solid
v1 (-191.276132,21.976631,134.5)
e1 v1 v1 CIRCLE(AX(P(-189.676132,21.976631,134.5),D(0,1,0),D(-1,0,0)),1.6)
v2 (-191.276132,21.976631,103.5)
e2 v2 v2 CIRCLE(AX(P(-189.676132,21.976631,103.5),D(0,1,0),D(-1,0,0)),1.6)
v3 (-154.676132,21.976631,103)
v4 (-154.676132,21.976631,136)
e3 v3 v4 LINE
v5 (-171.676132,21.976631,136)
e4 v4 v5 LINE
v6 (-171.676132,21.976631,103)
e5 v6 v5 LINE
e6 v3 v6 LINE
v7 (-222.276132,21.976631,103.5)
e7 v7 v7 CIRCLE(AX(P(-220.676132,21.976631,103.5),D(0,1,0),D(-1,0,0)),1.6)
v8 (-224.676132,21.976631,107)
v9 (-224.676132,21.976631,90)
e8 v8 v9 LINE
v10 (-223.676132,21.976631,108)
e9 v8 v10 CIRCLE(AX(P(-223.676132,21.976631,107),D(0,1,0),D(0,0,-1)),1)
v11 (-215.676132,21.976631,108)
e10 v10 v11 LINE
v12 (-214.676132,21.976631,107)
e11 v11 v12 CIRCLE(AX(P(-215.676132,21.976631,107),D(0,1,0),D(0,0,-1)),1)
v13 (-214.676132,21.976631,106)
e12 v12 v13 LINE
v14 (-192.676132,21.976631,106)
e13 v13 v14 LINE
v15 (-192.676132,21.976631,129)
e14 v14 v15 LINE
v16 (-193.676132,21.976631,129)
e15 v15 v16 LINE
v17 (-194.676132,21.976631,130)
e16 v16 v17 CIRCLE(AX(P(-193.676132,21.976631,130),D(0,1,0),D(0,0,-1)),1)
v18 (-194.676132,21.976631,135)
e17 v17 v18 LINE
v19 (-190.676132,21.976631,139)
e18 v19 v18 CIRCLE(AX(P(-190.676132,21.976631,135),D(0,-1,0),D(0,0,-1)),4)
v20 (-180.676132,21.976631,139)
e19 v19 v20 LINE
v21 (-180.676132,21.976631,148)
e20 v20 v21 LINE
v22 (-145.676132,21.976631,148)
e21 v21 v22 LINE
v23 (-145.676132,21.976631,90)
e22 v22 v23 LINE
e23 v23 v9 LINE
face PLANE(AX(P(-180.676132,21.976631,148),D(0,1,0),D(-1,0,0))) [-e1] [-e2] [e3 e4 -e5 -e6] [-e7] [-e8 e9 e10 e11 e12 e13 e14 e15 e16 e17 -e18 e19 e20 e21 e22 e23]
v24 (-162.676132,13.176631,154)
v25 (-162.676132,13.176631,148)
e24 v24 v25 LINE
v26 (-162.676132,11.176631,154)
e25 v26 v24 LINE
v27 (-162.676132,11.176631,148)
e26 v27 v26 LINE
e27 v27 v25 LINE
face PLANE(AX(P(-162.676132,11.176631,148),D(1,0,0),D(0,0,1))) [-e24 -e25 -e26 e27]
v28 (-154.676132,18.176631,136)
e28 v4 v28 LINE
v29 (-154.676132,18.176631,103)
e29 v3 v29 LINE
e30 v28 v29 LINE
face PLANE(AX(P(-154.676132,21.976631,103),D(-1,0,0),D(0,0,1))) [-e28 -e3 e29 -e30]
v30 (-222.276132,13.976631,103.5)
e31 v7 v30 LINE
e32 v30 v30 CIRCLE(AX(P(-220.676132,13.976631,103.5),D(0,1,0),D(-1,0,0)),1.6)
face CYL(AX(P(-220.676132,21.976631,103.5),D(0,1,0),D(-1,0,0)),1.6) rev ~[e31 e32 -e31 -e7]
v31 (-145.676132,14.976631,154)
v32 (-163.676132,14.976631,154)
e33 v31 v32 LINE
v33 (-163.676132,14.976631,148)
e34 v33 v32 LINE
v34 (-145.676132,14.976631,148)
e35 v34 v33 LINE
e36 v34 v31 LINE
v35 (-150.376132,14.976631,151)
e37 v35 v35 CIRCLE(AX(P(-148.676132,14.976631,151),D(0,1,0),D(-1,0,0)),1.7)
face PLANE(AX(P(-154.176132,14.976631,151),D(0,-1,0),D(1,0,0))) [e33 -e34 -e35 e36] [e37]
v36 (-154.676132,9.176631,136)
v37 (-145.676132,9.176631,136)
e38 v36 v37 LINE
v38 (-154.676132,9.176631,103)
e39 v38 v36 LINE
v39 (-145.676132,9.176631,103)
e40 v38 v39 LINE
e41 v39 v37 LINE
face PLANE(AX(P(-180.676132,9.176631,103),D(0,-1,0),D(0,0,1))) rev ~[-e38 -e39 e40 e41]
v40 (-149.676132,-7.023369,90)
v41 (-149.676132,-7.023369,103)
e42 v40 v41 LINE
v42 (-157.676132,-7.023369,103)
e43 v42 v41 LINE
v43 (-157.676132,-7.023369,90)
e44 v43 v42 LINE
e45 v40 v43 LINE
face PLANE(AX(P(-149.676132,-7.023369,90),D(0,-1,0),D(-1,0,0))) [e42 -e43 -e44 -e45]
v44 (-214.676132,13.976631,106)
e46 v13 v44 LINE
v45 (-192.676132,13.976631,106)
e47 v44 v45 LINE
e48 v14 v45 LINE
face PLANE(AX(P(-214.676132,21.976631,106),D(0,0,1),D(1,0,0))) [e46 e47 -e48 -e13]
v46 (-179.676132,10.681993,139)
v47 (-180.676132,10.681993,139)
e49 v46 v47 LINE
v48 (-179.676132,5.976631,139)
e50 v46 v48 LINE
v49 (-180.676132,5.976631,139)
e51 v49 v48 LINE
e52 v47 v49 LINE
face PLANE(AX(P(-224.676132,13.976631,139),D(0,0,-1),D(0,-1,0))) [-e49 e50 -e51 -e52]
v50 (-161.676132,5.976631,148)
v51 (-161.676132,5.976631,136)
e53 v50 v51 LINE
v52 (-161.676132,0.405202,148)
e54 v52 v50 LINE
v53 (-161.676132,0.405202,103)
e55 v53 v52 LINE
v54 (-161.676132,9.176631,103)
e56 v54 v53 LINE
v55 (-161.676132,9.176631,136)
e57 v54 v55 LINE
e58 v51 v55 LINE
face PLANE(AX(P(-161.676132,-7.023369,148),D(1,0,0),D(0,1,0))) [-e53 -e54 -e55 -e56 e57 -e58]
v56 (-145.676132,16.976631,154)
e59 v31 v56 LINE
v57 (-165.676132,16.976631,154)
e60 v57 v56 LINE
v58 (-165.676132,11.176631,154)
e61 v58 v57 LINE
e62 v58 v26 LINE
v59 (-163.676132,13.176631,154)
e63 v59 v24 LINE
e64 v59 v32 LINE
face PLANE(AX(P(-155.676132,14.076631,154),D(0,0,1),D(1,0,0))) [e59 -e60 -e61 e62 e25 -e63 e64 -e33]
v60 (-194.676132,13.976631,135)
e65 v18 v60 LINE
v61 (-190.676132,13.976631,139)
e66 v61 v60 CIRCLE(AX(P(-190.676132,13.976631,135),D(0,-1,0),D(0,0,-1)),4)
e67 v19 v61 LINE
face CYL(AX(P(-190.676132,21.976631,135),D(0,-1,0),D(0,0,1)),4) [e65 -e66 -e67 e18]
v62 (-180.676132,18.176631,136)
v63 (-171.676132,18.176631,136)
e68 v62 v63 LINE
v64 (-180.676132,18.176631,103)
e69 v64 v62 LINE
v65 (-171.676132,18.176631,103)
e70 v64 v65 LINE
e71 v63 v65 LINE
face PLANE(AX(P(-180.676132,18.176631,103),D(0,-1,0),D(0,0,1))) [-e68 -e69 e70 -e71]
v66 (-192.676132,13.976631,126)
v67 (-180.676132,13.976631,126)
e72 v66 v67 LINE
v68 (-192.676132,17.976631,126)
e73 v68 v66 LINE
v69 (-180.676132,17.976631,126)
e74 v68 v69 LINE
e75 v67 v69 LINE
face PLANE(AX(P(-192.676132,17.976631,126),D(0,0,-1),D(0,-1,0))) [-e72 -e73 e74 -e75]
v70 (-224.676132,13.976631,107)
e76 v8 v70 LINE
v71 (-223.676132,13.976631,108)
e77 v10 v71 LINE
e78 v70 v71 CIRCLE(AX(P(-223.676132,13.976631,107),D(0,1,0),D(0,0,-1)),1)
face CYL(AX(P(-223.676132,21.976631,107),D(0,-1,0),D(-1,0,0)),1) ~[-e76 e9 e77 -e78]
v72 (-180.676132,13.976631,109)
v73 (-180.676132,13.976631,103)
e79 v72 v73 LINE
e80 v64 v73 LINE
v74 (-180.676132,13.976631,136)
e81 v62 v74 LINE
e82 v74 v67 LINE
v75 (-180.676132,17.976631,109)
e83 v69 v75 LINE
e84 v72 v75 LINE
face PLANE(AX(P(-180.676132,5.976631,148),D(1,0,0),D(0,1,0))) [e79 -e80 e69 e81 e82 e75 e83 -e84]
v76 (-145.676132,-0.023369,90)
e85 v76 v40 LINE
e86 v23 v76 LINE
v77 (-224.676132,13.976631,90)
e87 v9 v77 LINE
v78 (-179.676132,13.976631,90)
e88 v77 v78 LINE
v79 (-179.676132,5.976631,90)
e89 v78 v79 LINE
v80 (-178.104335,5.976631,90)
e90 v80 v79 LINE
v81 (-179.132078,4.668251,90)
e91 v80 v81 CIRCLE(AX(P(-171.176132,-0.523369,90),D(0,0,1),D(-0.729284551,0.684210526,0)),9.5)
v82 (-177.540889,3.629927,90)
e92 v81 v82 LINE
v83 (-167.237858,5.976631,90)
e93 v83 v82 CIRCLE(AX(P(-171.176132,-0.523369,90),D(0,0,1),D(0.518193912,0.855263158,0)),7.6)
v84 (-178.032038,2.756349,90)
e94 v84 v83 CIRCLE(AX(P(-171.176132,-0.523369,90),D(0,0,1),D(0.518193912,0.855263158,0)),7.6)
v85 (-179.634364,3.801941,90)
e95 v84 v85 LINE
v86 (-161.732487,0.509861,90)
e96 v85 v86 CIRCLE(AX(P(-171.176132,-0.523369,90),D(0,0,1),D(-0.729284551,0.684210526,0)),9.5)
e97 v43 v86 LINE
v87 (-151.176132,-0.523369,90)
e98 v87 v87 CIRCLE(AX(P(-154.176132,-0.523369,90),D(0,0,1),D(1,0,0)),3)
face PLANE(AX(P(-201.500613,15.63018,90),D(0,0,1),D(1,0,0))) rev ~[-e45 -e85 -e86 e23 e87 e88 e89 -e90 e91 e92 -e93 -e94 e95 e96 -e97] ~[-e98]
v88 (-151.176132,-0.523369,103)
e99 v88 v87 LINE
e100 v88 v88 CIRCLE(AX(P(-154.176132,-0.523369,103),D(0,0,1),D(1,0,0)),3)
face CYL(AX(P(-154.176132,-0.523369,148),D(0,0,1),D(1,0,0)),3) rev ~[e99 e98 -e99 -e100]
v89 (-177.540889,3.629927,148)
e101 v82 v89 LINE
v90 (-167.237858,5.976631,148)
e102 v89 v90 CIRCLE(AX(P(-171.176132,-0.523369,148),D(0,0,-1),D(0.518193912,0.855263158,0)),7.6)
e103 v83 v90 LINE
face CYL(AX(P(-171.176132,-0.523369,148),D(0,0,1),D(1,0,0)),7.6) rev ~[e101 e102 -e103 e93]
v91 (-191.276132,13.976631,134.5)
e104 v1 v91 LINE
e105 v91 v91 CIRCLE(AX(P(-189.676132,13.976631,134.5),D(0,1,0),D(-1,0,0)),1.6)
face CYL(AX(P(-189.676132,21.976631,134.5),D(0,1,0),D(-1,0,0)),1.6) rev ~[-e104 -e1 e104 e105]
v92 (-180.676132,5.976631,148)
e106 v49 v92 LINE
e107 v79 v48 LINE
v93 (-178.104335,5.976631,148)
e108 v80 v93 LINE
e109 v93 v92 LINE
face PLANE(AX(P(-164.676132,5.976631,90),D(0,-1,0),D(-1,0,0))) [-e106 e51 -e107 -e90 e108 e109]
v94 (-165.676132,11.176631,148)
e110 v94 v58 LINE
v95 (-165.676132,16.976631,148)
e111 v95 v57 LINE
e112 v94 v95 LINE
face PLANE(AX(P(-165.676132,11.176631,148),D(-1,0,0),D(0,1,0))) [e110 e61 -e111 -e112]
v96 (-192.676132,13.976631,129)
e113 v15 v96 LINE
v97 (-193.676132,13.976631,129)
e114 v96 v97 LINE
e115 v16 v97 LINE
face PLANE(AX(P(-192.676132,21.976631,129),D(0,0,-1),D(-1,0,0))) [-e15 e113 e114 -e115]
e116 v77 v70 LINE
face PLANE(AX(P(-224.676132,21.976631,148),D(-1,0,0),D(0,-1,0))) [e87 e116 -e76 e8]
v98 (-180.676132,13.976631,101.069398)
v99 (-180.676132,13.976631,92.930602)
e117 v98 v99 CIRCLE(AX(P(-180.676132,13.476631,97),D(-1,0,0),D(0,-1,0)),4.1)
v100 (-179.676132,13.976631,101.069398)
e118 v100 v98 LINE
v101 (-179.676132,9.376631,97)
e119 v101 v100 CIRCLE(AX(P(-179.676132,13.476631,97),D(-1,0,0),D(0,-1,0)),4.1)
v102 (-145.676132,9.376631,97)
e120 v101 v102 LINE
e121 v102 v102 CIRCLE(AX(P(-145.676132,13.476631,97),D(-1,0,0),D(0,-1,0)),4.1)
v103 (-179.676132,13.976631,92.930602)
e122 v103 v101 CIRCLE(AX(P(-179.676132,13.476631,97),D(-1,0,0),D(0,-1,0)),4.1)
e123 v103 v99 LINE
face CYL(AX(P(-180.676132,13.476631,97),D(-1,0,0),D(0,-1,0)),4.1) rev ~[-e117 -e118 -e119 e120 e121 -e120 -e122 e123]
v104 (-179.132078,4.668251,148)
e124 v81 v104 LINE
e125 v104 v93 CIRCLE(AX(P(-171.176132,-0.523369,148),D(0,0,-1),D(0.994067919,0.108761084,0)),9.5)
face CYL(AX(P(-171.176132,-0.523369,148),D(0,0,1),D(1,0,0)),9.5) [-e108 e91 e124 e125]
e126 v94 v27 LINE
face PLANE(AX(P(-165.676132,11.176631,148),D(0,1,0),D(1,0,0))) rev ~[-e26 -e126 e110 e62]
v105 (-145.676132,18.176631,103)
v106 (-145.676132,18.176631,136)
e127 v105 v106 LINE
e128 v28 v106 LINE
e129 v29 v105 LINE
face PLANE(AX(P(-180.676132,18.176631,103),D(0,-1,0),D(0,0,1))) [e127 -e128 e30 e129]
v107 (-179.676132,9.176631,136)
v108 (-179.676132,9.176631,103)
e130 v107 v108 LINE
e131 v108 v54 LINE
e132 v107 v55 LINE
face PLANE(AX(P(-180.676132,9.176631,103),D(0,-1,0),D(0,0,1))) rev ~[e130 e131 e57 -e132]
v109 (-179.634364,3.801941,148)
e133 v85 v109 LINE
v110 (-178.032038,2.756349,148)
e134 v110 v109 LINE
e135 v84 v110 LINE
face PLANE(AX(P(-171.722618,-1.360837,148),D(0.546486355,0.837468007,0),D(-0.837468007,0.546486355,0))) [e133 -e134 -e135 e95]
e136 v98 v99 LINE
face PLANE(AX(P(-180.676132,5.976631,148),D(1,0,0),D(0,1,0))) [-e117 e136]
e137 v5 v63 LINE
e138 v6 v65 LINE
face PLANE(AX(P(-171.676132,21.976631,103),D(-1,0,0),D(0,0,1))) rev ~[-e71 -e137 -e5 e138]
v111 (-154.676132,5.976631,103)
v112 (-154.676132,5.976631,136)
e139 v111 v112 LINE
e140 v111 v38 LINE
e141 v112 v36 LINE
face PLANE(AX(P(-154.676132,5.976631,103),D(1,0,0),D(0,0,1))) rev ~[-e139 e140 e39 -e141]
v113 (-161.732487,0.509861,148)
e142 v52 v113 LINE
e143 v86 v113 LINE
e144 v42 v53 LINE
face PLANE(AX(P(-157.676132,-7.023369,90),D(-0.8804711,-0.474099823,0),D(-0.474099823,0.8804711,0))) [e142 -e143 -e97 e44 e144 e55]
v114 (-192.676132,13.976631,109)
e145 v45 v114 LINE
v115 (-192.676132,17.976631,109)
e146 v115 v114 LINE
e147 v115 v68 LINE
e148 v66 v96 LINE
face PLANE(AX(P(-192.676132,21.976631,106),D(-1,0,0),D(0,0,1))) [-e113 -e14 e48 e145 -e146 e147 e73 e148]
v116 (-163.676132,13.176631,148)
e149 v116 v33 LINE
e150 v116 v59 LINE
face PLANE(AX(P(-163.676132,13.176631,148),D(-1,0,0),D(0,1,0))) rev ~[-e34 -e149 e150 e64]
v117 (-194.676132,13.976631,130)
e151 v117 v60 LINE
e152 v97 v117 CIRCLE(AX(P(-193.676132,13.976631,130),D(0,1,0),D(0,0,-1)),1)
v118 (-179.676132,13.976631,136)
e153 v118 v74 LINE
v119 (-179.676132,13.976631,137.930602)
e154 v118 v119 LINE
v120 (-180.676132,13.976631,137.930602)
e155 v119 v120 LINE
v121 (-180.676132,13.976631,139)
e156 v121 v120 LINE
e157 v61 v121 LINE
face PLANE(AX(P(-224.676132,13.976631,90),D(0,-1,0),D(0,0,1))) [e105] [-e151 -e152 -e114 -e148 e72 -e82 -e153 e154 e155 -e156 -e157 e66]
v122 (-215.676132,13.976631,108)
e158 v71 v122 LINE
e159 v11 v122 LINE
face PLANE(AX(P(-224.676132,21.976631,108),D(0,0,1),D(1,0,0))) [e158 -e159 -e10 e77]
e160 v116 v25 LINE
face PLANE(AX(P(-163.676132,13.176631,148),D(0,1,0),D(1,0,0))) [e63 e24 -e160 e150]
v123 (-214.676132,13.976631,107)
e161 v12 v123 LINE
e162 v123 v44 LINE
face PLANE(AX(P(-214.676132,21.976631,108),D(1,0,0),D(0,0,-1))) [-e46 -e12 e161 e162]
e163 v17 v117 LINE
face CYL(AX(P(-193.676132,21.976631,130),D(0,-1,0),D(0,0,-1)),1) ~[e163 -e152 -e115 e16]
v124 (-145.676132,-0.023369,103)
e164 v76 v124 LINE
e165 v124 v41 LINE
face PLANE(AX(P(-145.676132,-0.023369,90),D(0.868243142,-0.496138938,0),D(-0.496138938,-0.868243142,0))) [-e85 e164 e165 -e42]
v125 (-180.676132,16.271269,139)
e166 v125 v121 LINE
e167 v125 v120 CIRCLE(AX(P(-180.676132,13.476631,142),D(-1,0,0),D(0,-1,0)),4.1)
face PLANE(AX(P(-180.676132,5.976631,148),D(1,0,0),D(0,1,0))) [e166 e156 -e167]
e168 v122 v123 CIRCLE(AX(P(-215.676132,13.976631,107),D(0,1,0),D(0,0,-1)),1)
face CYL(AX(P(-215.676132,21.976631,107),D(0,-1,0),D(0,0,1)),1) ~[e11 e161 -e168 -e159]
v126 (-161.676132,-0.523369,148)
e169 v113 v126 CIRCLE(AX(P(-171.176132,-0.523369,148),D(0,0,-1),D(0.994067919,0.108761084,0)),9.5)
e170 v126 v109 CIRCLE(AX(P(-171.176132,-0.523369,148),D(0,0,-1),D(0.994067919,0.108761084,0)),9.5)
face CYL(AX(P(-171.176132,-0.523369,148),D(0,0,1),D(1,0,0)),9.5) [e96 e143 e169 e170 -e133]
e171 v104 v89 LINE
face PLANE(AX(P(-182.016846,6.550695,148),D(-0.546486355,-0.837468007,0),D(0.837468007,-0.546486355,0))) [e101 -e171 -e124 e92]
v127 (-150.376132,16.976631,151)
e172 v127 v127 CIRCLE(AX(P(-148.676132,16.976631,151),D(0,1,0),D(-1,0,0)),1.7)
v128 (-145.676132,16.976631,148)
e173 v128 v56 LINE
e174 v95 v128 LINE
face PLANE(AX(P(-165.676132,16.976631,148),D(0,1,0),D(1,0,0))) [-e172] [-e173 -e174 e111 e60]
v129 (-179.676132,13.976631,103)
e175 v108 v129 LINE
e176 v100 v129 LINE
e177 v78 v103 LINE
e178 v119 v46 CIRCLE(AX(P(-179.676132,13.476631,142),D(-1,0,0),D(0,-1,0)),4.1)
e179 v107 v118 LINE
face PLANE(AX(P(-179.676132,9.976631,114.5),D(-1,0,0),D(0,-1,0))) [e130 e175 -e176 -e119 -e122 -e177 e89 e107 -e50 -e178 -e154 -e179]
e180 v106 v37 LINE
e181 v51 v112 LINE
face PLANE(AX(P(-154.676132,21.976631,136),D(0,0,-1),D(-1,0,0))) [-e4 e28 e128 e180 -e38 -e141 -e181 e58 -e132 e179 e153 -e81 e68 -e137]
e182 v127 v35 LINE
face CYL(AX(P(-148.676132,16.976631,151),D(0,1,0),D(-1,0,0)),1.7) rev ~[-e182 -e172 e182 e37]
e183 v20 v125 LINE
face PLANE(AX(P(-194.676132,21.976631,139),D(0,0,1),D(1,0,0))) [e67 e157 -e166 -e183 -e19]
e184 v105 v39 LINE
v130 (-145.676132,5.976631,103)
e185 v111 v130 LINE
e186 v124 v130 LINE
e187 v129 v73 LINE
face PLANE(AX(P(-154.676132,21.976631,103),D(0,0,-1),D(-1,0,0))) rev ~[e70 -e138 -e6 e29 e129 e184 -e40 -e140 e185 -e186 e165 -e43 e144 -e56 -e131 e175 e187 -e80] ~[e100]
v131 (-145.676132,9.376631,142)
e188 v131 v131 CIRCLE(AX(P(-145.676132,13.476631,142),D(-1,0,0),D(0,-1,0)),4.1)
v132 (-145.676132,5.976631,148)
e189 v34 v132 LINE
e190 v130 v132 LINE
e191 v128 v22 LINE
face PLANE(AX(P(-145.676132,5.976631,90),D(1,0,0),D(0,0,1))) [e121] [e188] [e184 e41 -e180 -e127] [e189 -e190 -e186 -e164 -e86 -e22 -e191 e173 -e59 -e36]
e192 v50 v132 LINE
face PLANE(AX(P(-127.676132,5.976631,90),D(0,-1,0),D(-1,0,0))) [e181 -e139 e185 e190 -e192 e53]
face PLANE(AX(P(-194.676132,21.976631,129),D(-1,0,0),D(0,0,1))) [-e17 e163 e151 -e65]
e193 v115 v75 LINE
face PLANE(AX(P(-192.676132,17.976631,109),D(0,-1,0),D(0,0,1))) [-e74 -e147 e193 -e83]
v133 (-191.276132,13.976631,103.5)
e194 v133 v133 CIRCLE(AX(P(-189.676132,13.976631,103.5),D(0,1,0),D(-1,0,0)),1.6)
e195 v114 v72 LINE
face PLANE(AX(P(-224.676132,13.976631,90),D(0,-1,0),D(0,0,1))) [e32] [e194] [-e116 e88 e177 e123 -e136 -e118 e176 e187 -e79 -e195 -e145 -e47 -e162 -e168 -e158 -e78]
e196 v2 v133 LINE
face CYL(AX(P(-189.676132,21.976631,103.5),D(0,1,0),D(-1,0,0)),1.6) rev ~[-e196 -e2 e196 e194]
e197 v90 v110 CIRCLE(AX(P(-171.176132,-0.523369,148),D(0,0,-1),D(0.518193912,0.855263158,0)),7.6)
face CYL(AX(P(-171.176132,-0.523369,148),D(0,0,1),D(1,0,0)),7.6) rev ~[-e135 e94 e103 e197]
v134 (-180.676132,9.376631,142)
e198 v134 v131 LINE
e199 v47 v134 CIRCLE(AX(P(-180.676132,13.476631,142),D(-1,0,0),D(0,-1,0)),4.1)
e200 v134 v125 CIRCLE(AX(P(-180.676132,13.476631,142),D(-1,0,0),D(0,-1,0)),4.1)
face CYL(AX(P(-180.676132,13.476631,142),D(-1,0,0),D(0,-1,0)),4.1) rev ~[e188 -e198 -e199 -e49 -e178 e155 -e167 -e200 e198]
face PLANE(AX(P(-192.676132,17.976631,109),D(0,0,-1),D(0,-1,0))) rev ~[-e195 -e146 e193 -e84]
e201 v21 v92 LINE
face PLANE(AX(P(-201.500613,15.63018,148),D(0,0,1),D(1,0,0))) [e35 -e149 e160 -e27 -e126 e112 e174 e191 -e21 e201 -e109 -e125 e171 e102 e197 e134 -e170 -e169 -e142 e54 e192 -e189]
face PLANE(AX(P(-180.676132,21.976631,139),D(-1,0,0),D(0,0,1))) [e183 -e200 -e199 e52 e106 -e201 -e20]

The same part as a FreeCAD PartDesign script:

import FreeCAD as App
import Part
import Sketcher

V = App.Vector
Q = App.Units.Quantity


def edges_at(feature, points):
    """Names of the edges that pass closest to the given points."""
    edges = feature.Shape.Edges
    near = lambda p: min(range(len(edges)), key=lambda i: edges[i].distToShape(Part.Vertex(*p))[0])
    return sorted({f"Edge{near(p) + 1}" for p in points})


def add_polygon(sketch, points):
    """Adds a closed chain of lines whose ends are joined by coincident constraints."""
    first, n = sketch.GeometryCount, len(points)
    for a, b in zip(points, points[1:] + points[:1]):
        sketch.addGeometry(Part.LineSegment(App.Vector(*a, 0), App.Vector(*b, 0)), False)
    for i in range(n):
        sketch.addConstraint(Sketcher.Constraint("Coincident", first + i, 2, first + (i + 1) % n, 1))

doc = App.newDocument("Part")
params = doc.addObject("Spreadsheet::Sheet", "Params")
for row, (alias, value) in enumerate([
    ("sketch1_width", "53 mm"),
    ("sketch1_width2", "16 mm"),
    ("sketch1_width3", "8 mm"),
    ("sketch1_width4", "18 mm"),
    ("sketch1_height", "6 mm"),
    ("pad1_length", "58 mm"),
    ("sketch2_diameter", "19 mm"),
    ("sketch2_diameter2", "15.2 mm"),
    ("pad2_length", "58 mm"),
    ("sketch3_diameter", "6 mm"),
    ("sketch3_diameter2", "15.2 mm"),
    ("pocket1_length", "58 mm"),
    ("sketch4_diameter", "8.2 mm"),
    ("sketch4_width", "9 mm"),
    ("sketch4_height", "33 mm"),
    ("pocket2_length", "55 mm"),
    ("sketch5_width", "16 mm"),
    ("sketch5_height", "13 mm"),
    ("pocket3_length", "45 mm"),
    ("sketch6_width", "44 mm"),
    ("sketch6_width2", "10 mm"),
    ("sketch6_height", "16 mm"),
    ("pad3_length", "58 mm"),
    ("sketch7_diameter", "3.2 mm"),
    ("sketch7_width", "10 mm"),
    ("sketch7_width2", "44 mm"),
    ("sketch7_width3", "14 mm"),
    ("sketch7_width4", "2 mm"),
    ("pocket4_length", "17 mm"),
    ("sketch8_width", "18 mm"),
    ("sketch8_height", "58 mm"),
    ("pocket5_length", "25 mm"),
    ("sketch9_width", "17 mm"),
    ("sketch9_height", "33 mm"),
    ("pocket6_length", "5 mm"),
    ("sketch10_width", "7 mm"),
    ("sketch10_height", "33 mm"),
    ("pocket7_length", "5 mm"),
    ("sketch11_width", "8 mm"),
    ("sketch11_height", "49 mm"),
    ("pocket8_length", "45 mm"),
    ("sketch12_width", "4 mm"),
    ("sketch12_height", "17 mm"),
    ("pocket9_length", "20 mm"),
    ("sketch13_length", "1 mm"),
    ("pocket10_length", "58 mm"),
    ("sketch14_width", "20 mm"),
    ("sketch14_width2", "17.2 mm"),
    ("sketch14_height", "5.8 mm"),
    ("sketch14_height2", "1.8 mm"),
    ("pad4_length", "6 mm"),
    ("sketch15_width", "17 mm"),
    ("sketch15_height", "6 mm"),
    ("pocket11_length", "3.8 mm"),
    ("sketch16_diameter", "3.4 mm"),
    ("fillet_radius", "1 mm"),
    ("fillet2_radius", "4 mm"),
], start=1):
    params.set(f"A{row}", alias)
    params.set(f"B{row}", "=" + value)
    params.setAlias(f"B{row}", alias)

body = doc.addObject("PartDesign::Body", "Body")

# Sketch on XY plane
sketch1 = body.newObject("Sketcher::SketchObject", "Sketch")
sketch1.AttachmentSupport = (doc.getObject("XY_Plane"), [""])
sketch1.MapMode = "FlatFace"
sketch1.AttachmentOffset = App.Placement(V(0, 0, 90), App.Rotation())
add_polygon(sketch1, [(-128, 22), (-181, 22), (-181, 6), (-165, 6), (-158, -7), (-150, -7), (-146, 0), (-146, 6), (-128, 6)])  # lines 0-8
sketch1.addConstraint(Sketcher.Constraint("Horizontal", 0))
sketch1.addConstraint(Sketcher.Constraint("Vertical", 1))
sketch1.addConstraint(Sketcher.Constraint("Horizontal", 2))
sketch1.addConstraint(Sketcher.Constraint("Horizontal", 4))
sketch1.addConstraint(Sketcher.Constraint("Vertical", 6))
sketch1.addConstraint(Sketcher.Constraint("Horizontal", 7))
sketch1.addConstraint(Sketcher.Constraint("Vertical", 8))
sketch1.addConstraint(Sketcher.Constraint("Horizontal", 2, 2, 6, 2))
sketch1.addConstraint(Sketcher.Constraint("Equal", 2, 1))
sketch1.addConstraint(Sketcher.Constraint("DistanceX", 0, 2, 0, 1, Q("53 mm")))
sketch1.addConstraint(Sketcher.Constraint("DistanceX", 2, 1, 2, 2, Q("16 mm")))
sketch1.addConstraint(Sketcher.Constraint("DistanceX", 4, 1, 4, 2, Q("8 mm")))
sketch1.addConstraint(Sketcher.Constraint("DistanceX", 7, 1, 7, 2, Q("18 mm")))
sketch1.addConstraint(Sketcher.Constraint("DistanceY", 6, 1, 6, 2, Q("6 mm")))
sketch1.addConstraint(Sketcher.Constraint("DistanceX", 2, 2, 3, 2, Q("7 mm")))
sketch1.addConstraint(Sketcher.Constraint("DistanceY", 3, 2, 2, 2, Q("13 mm")))
sketch1.addConstraint(Sketcher.Constraint("DistanceX", 0, 2, -1, 1, Q("180.676132 mm")))
sketch1.addConstraint(Sketcher.Constraint("DistanceY", -1, 1, 0, 2, Q("21.976631 mm")))
sketch1.setExpression("Constraints[18]", "Params.sketch1_width")
sketch1.setExpression("Constraints[19]", "Params.sketch1_width2")
sketch1.setExpression("Constraints[20]", "Params.sketch1_width3")
sketch1.setExpression("Constraints[21]", "Params.sketch1_width4")
sketch1.setExpression("Constraints[22]", "Params.sketch1_height")
pad1 = body.newObject("PartDesign::Pad", "Pad")
pad1.Profile = sketch1
pad1.setExpression("Length", "Params.pad1_length")

# Sketch on XY plane
sketch2 = body.newObject("Sketcher::SketchObject", "Sketch001")
sketch2.AttachmentSupport = (doc.getObject("XY_Plane"), [""])
sketch2.MapMode = "FlatFace"
sketch2.AttachmentOffset = App.Placement(V(0, 0, 148), App.Rotation())
sketch2.addGeometry(Part.Circle(V(-171, -1, 0), V(0, 0, 1), 10), False)
sketch2.addGeometry(Part.Circle(V(-171, -1, 0), V(0, 0, 1), 8), False)
sketch2.addConstraint(Sketcher.Constraint("Coincident", 1, 3, 0, 3))
sketch2.addConstraint(Sketcher.Constraint("Diameter", 0, Q("19 mm")))
sketch2.addConstraint(Sketcher.Constraint("Diameter", 1, Q("15.2 mm")))
sketch2.addConstraint(Sketcher.Constraint("DistanceX", 0, 3, -1, 1, Q("171.176132 mm")))
sketch2.addConstraint(Sketcher.Constraint("DistanceY", 0, 3, -1, 1, Q("0.523369 mm")))
sketch2.setExpression("Constraints[1]", "Params.sketch2_diameter")
sketch2.setExpression("Constraints[2]", "Params.sketch2_diameter2")
pad2 = body.newObject("PartDesign::Pad", "Pad001")
pad2.Profile = sketch2
pad2.setExpression("Length", "Params.pad2_length")
pad2.Reversed = True

# Sketch on XY plane
sketch3 = body.newObject("Sketcher::SketchObject", "Sketch002")
sketch3.AttachmentSupport = (doc.getObject("XY_Plane"), [""])
sketch3.MapMode = "FlatFace"
sketch3.AttachmentOffset = App.Placement(V(0, 0, 148), App.Rotation())
sketch3.addGeometry(Part.Circle(V(-171.2, -0.5, 0), V(0, 0, 1), 7.6), False)
sketch3.addGeometry(Part.Circle(V(-154.2, -0.5, 0), V(0, 0, 1), 3), False)
sketch3.addConstraint(Sketcher.Constraint("Horizontal", 0, 3, 1, 3))
sketch3.addConstraint(Sketcher.Constraint("Diameter", 1, Q("6 mm")))
sketch3.addConstraint(Sketcher.Constraint("Diameter", 0, Q("15.2 mm")))
sketch3.addConstraint(Sketcher.Constraint("DistanceX", 0, 3, 1, 3, Q("17 mm")))
sketch3.addConstraint(Sketcher.Constraint("DistanceX", 0, 3, -1, 1, Q("171.176132 mm")))
sketch3.addConstraint(Sketcher.Constraint("DistanceY", 0, 3, -1, 1, Q("0.523369 mm")))
sketch3.setExpression("Constraints[1]", "Params.sketch3_diameter")
sketch3.setExpression("Constraints[2]", "Params.sketch3_diameter2")
pocket1 = body.newObject("PartDesign::Pocket", "Pocket")
pocket1.Profile = sketch3
pocket1.setExpression("Length", "Params.pocket1_length")

# Sketch on YZ plane
sketch4 = body.newObject("Sketcher::SketchObject", "Sketch003")
sketch4.AttachmentSupport = (doc.getObject("YZ_Plane"), [""])
sketch4.MapMode = "FlatFace"
sketch4.AttachmentOffset = App.Placement(V(0, 0, -180.676132), App.Rotation())
sketch4.addGeometry(Part.Circle(V(13.5, 142, 0), V(0, 0, 1), 4.1), False)  # 0
sketch4.addGeometry(Part.Circle(V(13.5, 97, 0), V(0, 0, 1), 4.1), False)  # 1
add_polygon(sketch4, [(18.2, 136), (18.2, 103), (9.2, 103), (9.2, 136)])  # lines 2-5
sketch4.addConstraint(Sketcher.Constraint("Vertical", 2))
sketch4.addConstraint(Sketcher.Constraint("Horizontal", 3))
sketch4.addConstraint(Sketcher.Constraint("Vertical", 4))
sketch4.addConstraint(Sketcher.Constraint("Horizontal", 5))
sketch4.addConstraint(Sketcher.Constraint("Equal", 0, 1))
sketch4.addConstraint(Sketcher.Constraint("Vertical", 0, 3, 1, 3))
sketch4.addConstraint(Sketcher.Constraint("Diameter", 0, Q("8.2 mm")))
sketch4.addConstraint(Sketcher.Constraint("DistanceX", 3, 2, 3, 1, Q("9 mm")))
sketch4.addConstraint(Sketcher.Constraint("DistanceY", 2, 2, 2, 1, Q("33 mm")))
sketch4.addConstraint(Sketcher.Constraint("DistanceY", -1, 1, 0, 3, Q("142 mm")))
sketch4.addConstraint(Sketcher.Constraint("DistanceY", -1, 1, 1, 3, Q("97 mm")))
sketch4.addConstraint(Sketcher.Constraint("DistanceY", -1, 1, 2, 2, Q("103 mm")))
sketch4.addConstraint(Sketcher.Constraint("DistanceX", 1, 3, 2, 2, Q("4.7 mm")))
sketch4.addConstraint(Sketcher.Constraint("DistanceX", -1, 1, 0, 3, Q("13.476631 mm")))
sketch4.setExpression("Constraints[10]", "Params.sketch4_diameter")
sketch4.setExpression("Constraints[11]", "Params.sketch4_width")
sketch4.setExpression("Constraints[12]", "Params.sketch4_height")
pocket2 = body.newObject("PartDesign::Pocket", "Pocket001")
pocket2.Profile = sketch4
pocket2.setExpression("Length", "Params.pocket2_length")
pocket2.Reversed = True

# Sketch on XY plane
sketch5 = body.newObject("Sketcher::SketchObject", "Sketch004")
sketch5.AttachmentSupport = (doc.getObject("XY_Plane"), [""])
sketch5.MapMode = "FlatFace"
sketch5.AttachmentOffset = App.Placement(V(0, 0, 148), App.Rotation())
add_polygon(sketch5, [(-162, 6), (-162, -7), (-146, -7), (-146, 6)])  # lines 0-3
sketch5.addConstraint(Sketcher.Constraint("Vertical", 0))
sketch5.addConstraint(Sketcher.Constraint("Horizontal", 1))
sketch5.addConstraint(Sketcher.Constraint("Vertical", 2))
sketch5.addConstraint(Sketcher.Constraint("Horizontal", 3))
sketch5.addConstraint(Sketcher.Constraint("DistanceX", 1, 1, 1, 2, Q("16 mm")))
sketch5.addConstraint(Sketcher.Constraint("DistanceY", 0, 2, 0, 1, Q("13 mm")))
sketch5.addConstraint(Sketcher.Constraint("DistanceX", 0, 2, -1, 1, Q("161.676132 mm")))
sketch5.addConstraint(Sketcher.Constraint("DistanceY", 0, 2, -1, 1, Q("7.023369 mm")))
sketch5.setExpression("Constraints[8]", "Params.sketch5_width")
sketch5.setExpression("Constraints[9]", "Params.sketch5_height")
pocket3 = body.newObject("PartDesign::Pocket", "Pocket002")
pocket3.Profile = sketch5
pocket3.setExpression("Length", "Params.pocket3_length")

# Sketch on XY plane
sketch6 = body.newObject("Sketcher::SketchObject", "Sketch005")
sketch6.AttachmentSupport = (doc.getObject("XY_Plane"), [""])
sketch6.MapMode = "FlatFace"
sketch6.AttachmentOffset = App.Placement(V(0, 0, 148), App.Rotation())
add_polygon(sketch6, [(-181, 22), (-225, 22), (-225, 12), (-215, 12), (-181, 6)])  # lines 0-4
sketch6.addConstraint(Sketcher.Constraint("Horizontal", 0))
sketch6.addConstraint(Sketcher.Constraint("Vertical", 1))
sketch6.addConstraint(Sketcher.Constraint("Horizontal", 2))
sketch6.addConstraint(Sketcher.Constraint("Vertical", 4))
sketch6.addConstraint(Sketcher.Constraint("Equal", 2, 1))
sketch6.addConstraint(Sketcher.Constraint("DistanceX", 0, 2, 0, 1, Q("44 mm")))
sketch6.addConstraint(Sketcher.Constraint("DistanceX", 2, 1, 2, 2, Q("10 mm")))
sketch6.addConstraint(Sketcher.Constraint("DistanceY", 4, 1, 4, 2, Q("16 mm")))
sketch6.addConstraint(Sketcher.Constraint("DistanceX", 0, 2, -1, 1, Q("224.676132 mm")))
sketch6.addConstraint(Sketcher.Constraint("DistanceY", -1, 1, 0, 2, Q("21.976631 mm")))
sketch6.setExpression("Constraints[10]", "Params.sketch6_width")
sketch6.setExpression("Constraints[11]", "Params.sketch6_width2")
sketch6.setExpression("Constraints[12]", "Params.sketch6_height")
pad3 = body.newObject("PartDesign::Pad", "Pad002")
pad3.Profile = sketch6
pad3.setExpression("Length", "Params.pad3_length")
pad3.Reversed = True

# Sketch on XZ plane
sketch7 = body.newObject("Sketcher::SketchObject", "Sketch006")
sketch7.AttachmentSupport = (doc.getObject("XZ_Plane"), [""])
sketch7.MapMode = "FlatFace"
sketch7.AttachmentOffset = App.Placement(V(0, 0, -21.976631), App.Rotation())
sketch7.addGeometry(Part.Circle(V(-189.7, 134.5, 0), V(0, 0, 1), 1.6), False)  # 0
sketch7.addGeometry(Part.Circle(V(-189.7, 103.5, 0), V(0, 0, 1), 1.6), False)  # 1
sketch7.addGeometry(Part.Circle(V(-220.7, 103.5, 0), V(0, 0, 1), 1.6), False)  # 2
add_polygon(sketch7, [(-214.7, 108), (-224.7, 108), (-224.7, 148), (-180.7, 148), (-180.7, 139), (-194.7, 139), (-194.7, 129), (-192.7, 129), (-192.7, 106), (-214.7, 106)])  # lines 3-12
sketch7.addConstraint(Sketcher.Constraint("Horizontal", 3))
sketch7.addConstraint(Sketcher.Constraint("Vertical", 4))
sketch7.addConstraint(Sketcher.Constraint("Horizontal", 5))
sketch7.addConstraint(Sketcher.Constraint("Vertical", 6))
sketch7.addConstraint(Sketcher.Constraint("Horizontal", 7))
sketch7.addConstraint(Sketcher.Constraint("Vertical", 8))
sketch7.addConstraint(Sketcher.Constraint("Horizontal", 9))
sketch7.addConstraint(Sketcher.Constraint("Vertical", 10))
sketch7.addConstraint(Sketcher.Constraint("Horizontal", 11))
sketch7.addConstraint(Sketcher.Constraint("Vertical", 12))
sketch7.addConstraint(Sketcher.Constraint("Equal", 0, 1))
sketch7.addConstraint(Sketcher.Constraint("Equal", 1, 2))
sketch7.addConstraint(Sketcher.Constraint("Horizontal", 1, 3, 2, 3))
sketch7.addConstraint(Sketcher.Constraint("Vertical", 0, 3, 1, 3))
sketch7.addConstraint(Sketcher.Constraint("Equal", 3, 8))
sketch7.addConstraint(Sketcher.Constraint("Equal", 9, 12))
sketch7.addConstraint(Sketcher.Constraint("Diameter", 0, Q("3.2 mm")))
sketch7.addConstraint(Sketcher.Constraint("DistanceX", 3, 2, 3, 1, Q("10 mm")))
sketch7.addConstraint(Sketcher.Constraint("DistanceX", 5, 1, 5, 2, Q("44 mm")))
sketch7.addConstraint(Sketcher.Constraint("DistanceX", 7, 2, 7, 1, Q("14 mm")))
sketch7.addConstraint(Sketcher.Constraint("DistanceX", 9, 1, 9, 2, Q("2 mm")))
sketch7.addConstraint(Sketcher.Constraint("DistanceY", 4, 1, 4, 2, Q("40 mm")))
sketch7.addConstraint(Sketcher.Constraint("DistanceY", 6, 2, 6, 1, Q("9 mm")))
sketch7.addConstraint(Sketcher.Constraint("DistanceY", -1, 1, 3, 2, Q("108 mm")))
sketch7.addConstraint(Sketcher.Constraint("DistanceY", 1, 3, 0, 3, Q("31 mm")))
sketch7.addConstraint(Sketcher.Constraint("DistanceX", 2, 3, 1, 3, Q("31 mm")))
sketch7.addConstraint(Sketcher.Constraint("DistanceX", 3, 2, 2, 3, Q("4 mm")))
sketch7.addConstraint(Sketcher.Constraint("DistanceY", -1, 1, 0, 3, Q("134.5 mm")))
sketch7.addConstraint(Sketcher.Constraint("DistanceX", 0, 3, -1, 1, Q("189.676132 mm")))
sketch7.setExpression("Constraints[26]", "Params.sketch7_diameter")
sketch7.setExpression("Constraints[27]", "Params.sketch7_width")
sketch7.setExpression("Constraints[28]", "Params.sketch7_width2")
sketch7.setExpression("Constraints[29]", "Params.sketch7_width3")
sketch7.setExpression("Constraints[30]", "Params.sketch7_width4")
pocket4 = body.newObject("PartDesign::Pocket", "Pocket003")
pocket4.Profile = sketch7
pocket4.setExpression("Length", "Params.pocket4_length")
pocket4.Reversed = True

# Sketch on XZ plane
sketch8 = body.newObject("Sketcher::SketchObject", "Sketch007")
sketch8.AttachmentSupport = (doc.getObject("XZ_Plane"), [""])
sketch8.MapMode = "FlatFace"
sketch8.AttachmentOffset = App.Placement(V(0, 0, -5.976631), App.Rotation())
add_polygon(sketch8, [(-146, 148), (-146, 90), (-128, 90), (-128, 148)])  # lines 0-3
sketch8.addConstraint(Sketcher.Constraint("Vertical", 0))
sketch8.addConstraint(Sketcher.Constraint("Horizontal", 1))
sketch8.addConstraint(Sketcher.Constraint("Vertical", 2))
sketch8.addConstraint(Sketcher.Constraint("Horizontal", 3))
sketch8.addConstraint(Sketcher.Constraint("DistanceX", 1, 1, 1, 2, Q("18 mm")))
sketch8.addConstraint(Sketcher.Constraint("DistanceY", 0, 2, 0, 1, Q("58 mm")))
sketch8.addConstraint(Sketcher.Constraint("DistanceY", -1, 1, 0, 2, Q("90 mm")))
sketch8.addConstraint(Sketcher.Constraint("DistanceX", 0, 2, -1, 1, Q("145.676132 mm")))
sketch8.setExpression("Constraints[8]", "Params.sketch8_width")
sketch8.setExpression("Constraints[9]", "Params.sketch8_height")
pocket5 = body.newObject("PartDesign::Pocket", "Pocket004")
pocket5.Profile = sketch8
pocket5.setExpression("Length", "Params.pocket5_length")

# Sketch on XZ plane
sketch9 = body.newObject("Sketcher::SketchObject", "Sketch008")
sketch9.AttachmentSupport = (doc.getObject("XZ_Plane"), [""])
sketch9.MapMode = "FlatFace"
sketch9.AttachmentOffset = App.Placement(V(0, 0, -21.976631), App.Rotation())
add_polygon(sketch9, [(-155, 136), (-155, 103), (-172, 103), (-172, 136)])  # lines 0-3
sketch9.addConstraint(Sketcher.Constraint("Vertical", 0))
sketch9.addConstraint(Sketcher.Constraint("Horizontal", 1))
sketch9.addConstraint(Sketcher.Constraint("Vertical", 2))
sketch9.addConstraint(Sketcher.Constraint("Horizontal", 3))
sketch9.addConstraint(Sketcher.Constraint("DistanceX", 1, 2, 1, 1, Q("17 mm")))
sketch9.addConstraint(Sketcher.Constraint("DistanceY", 0, 2, 0, 1, Q("33 mm")))
sketch9.addConstraint(Sketcher.Constraint("DistanceY", -1, 1, 0, 2, Q("103 mm")))
sketch9.addConstraint(Sketcher.Constraint("DistanceX", 0, 2, -1, 1, Q("154.676132 mm")))
sketch9.setExpression("Constraints[8]", "Params.sketch9_width")
sketch9.setExpression("Constraints[9]", "Params.sketch9_height")
pocket6 = body.newObject("PartDesign::Pocket", "Pocket005")
pocket6.Profile = sketch9
pocket6.setExpression("Length", "Params.pocket6_length")
pocket6.Reversed = True

# Sketch on XZ plane
sketch10 = body.newObject("Sketcher::SketchObject", "Sketch009")
sketch10.AttachmentSupport = (doc.getObject("XZ_Plane"), [""])
sketch10.MapMode = "FlatFace"
sketch10.AttachmentOffset = App.Placement(V(0, 0, -5.976631), App.Rotation())
add_polygon(sketch10, [(-162, 136), (-162, 103), (-155, 103), (-155, 136)])  # lines 0-3
sketch10.addConstraint(Sketcher.Constraint("Vertical", 0))
sketch10.addConstraint(Sketcher.Constraint("Horizontal", 1))
sketch10.addConstraint(Sketcher.Constraint("Vertical", 2))
sketch10.addConstraint(Sketcher.Constraint("Horizontal", 3))
sketch10.addConstraint(Sketcher.Constraint("DistanceX", 1, 1, 1, 2, Q("7 mm")))
sketch10.addConstraint(Sketcher.Constraint("DistanceY", 0, 2, 0, 1, Q("33 mm")))
sketch10.addConstraint(Sketcher.Constraint("DistanceY", -1, 1, 0, 2, Q("103 mm")))
sketch10.addConstraint(Sketcher.Constraint("DistanceX", 0, 2, -1, 1, Q("161.676132 mm")))
sketch10.setExpression("Constraints[8]", "Params.sketch10_width")
sketch10.setExpression("Constraints[9]", "Params.sketch10_height")
pocket7 = body.newObject("PartDesign::Pocket", "Pocket006")
pocket7.Profile = sketch10
pocket7.setExpression("Length", "Params.pocket7_length")

# Sketch on YZ plane
sketch11 = body.newObject("Sketcher::SketchObject", "Sketch010")
sketch11.AttachmentSupport = (doc.getObject("YZ_Plane"), [""])
sketch11.MapMode = "FlatFace"
sketch11.AttachmentOffset = App.Placement(V(0, 0, -224.676132), App.Rotation())
add_polygon(sketch11, [(14, 139), (14, 90), (6, 90), (6, 139)])  # lines 0-3
sketch11.addConstraint(Sketcher.Constraint("Vertical", 0))
sketch11.addConstraint(Sketcher.Constraint("Horizontal", 1))
sketch11.addConstraint(Sketcher.Constraint("Vertical", 2))
sketch11.addConstraint(Sketcher.Constraint("Horizontal", 3))
sketch11.addConstraint(Sketcher.Constraint("DistanceX", 1, 2, 1, 1, Q("8 mm")))
sketch11.addConstraint(Sketcher.Constraint("DistanceY", 0, 2, 0, 1, Q("49 mm")))
sketch11.addConstraint(Sketcher.Constraint("DistanceY", -1, 1, 0, 2, Q("90 mm")))
sketch11.addConstraint(Sketcher.Constraint("DistanceX", -1, 1, 0, 2, Q("13.976631 mm")))
sketch11.setExpression("Constraints[8]", "Params.sketch11_width")
sketch11.setExpression("Constraints[9]", "Params.sketch11_height")
pocket8 = body.newObject("PartDesign::Pocket", "Pocket007")
pocket8.Profile = sketch11
pocket8.setExpression("Length", "Params.pocket8_length")
pocket8.Reversed = True

# Sketch on YZ plane
sketch12 = body.newObject("Sketcher::SketchObject", "Sketch011")
sketch12.AttachmentSupport = (doc.getObject("YZ_Plane"), [""])
sketch12.MapMode = "FlatFace"
sketch12.AttachmentOffset = App.Placement(V(0, 0, -192.676132), App.Rotation())
add_polygon(sketch12, [(18, 126), (18, 109), (14, 109), (14, 126)])  # lines 0-3
sketch12.addConstraint(Sketcher.Constraint("Vertical", 0))
sketch12.addConstraint(Sketcher.Constraint("Horizontal", 1))
sketch12.addConstraint(Sketcher.Constraint("Vertical", 2))
sketch12.addConstraint(Sketcher.Constraint("Horizontal", 3))
sketch12.addConstraint(Sketcher.Constraint("DistanceX", 1, 2, 1, 1, Q("4 mm")))
sketch12.addConstraint(Sketcher.Constraint("DistanceY", 0, 2, 0, 1, Q("17 mm")))
sketch12.addConstraint(Sketcher.Constraint("DistanceY", -1, 1, 0, 2, Q("109 mm")))
sketch12.addConstraint(Sketcher.Constraint("DistanceX", -1, 1, 0, 2, Q("17.976631 mm")))
sketch12.setExpression("Constraints[8]", "Params.sketch12_width")
sketch12.setExpression("Constraints[9]", "Params.sketch12_height")
pocket9 = body.newObject("PartDesign::Pocket", "Pocket008")
pocket9.Profile = sketch12
pocket9.setExpression("Length", "Params.pocket9_length")
pocket9.Reversed = True

# Sketch on XY plane
sketch13 = body.newObject("Sketcher::SketchObject", "Sketch012")
sketch13.AttachmentSupport = (doc.getObject("XY_Plane"), [""])
sketch13.MapMode = "FlatFace"
sketch13.AttachmentOffset = App.Placement(V(0, 0, 148), App.Rotation())
add_polygon(sketch13, [(-182.6, 5.7), (-171.7, -1.4), (-171.2, -0.5), (-182, 6.6)])  # lines 0-3
sketch13.addConstraint(Sketcher.Constraint("Perpendicular", 0, 1))
sketch13.addConstraint(Sketcher.Constraint("Perpendicular", 1, 2))
sketch13.addConstraint(Sketcher.Constraint("Perpendicular", 2, 3))
sketch13.addConstraint(Sketcher.Constraint("Distance", 1, Q("1 mm")))
sketch13.addConstraint(Sketcher.Constraint("DistanceX", 3, 2, 1, 2, Q("11.3872 mm")))
sketch13.addConstraint(Sketcher.Constraint("Distance", 0, Q("12.944631 mm")))
sketch13.addConstraint(Sketcher.Constraint("DistanceX", 0, 2, -1, 1, Q("171.722618 mm")))
sketch13.addConstraint(Sketcher.Constraint("DistanceY", 1, 2, -1, 1, Q("0.523369 mm")))
sketch13.setExpression("Constraints[7]", "Params.sketch13_length")
pocket10 = body.newObject("PartDesign::Pocket", "Pocket009")
pocket10.Profile = sketch13
pocket10.setExpression("Length", "Params.pocket10_length")

# Sketch on XY plane
sketch14 = body.newObject("Sketcher::SketchObject", "Sketch013")
sketch14.AttachmentSupport = (doc.getObject("XY_Plane"), [""])
sketch14.MapMode = "FlatFace"
sketch14.AttachmentOffset = App.Placement(V(0, 0, 148), App.Rotation())
add_polygon(sketch14, [(-165.7, 17), (-165.7, 11.2), (-145.7, 11.2), (-145.7, 17)])  # lines 0-3
add_polygon(sketch14, [(-146.5, 13.2), (-163.7, 13.2), (-163.7, 15), (-146.5, 15)])  # lines 4-7
sketch14.addConstraint(Sketcher.Constraint("Vertical", 0))
sketch14.addConstraint(Sketcher.Constraint("Horizontal", 1))
sketch14.addConstraint(Sketcher.Constraint("Vertical", 2))
sketch14.addConstraint(Sketcher.Constraint("Horizontal", 3))
sketch14.addConstraint(Sketcher.Constraint("Horizontal", 4))
sketch14.addConstraint(Sketcher.Constraint("Vertical", 5))
sketch14.addConstraint(Sketcher.Constraint("Horizontal", 6))
sketch14.addConstraint(Sketcher.Constraint("Vertical", 7))
sketch14.addConstraint(Sketcher.Constraint("DistanceX", 1, 1, 1, 2, Q("20 mm")))
sketch14.addConstraint(Sketcher.Constraint("DistanceX", 4, 2, 4, 1, Q("17.2 mm")))
sketch14.addConstraint(Sketcher.Constraint("DistanceY", 0, 2, 0, 1, Q("5.8 mm")))
sketch14.addConstraint(Sketcher.Constraint("DistanceY", 5, 1, 5, 2, Q("1.8 mm")))
sketch14.addConstraint(Sketcher.Constraint("DistanceX", 0, 2, 4, 2, Q("2 mm")))
sketch14.addConstraint(Sketcher.Constraint("DistanceY", 0, 2, 4, 2, Q("2 mm")))
sketch14.addConstraint(Sketcher.Constraint("DistanceX", 0, 2, -1, 1, Q("165.676132 mm")))
sketch14.addConstraint(Sketcher.Constraint("DistanceY", -1, 1, 0, 2, Q("11.176631 mm")))
sketch14.setExpression("Constraints[16]", "Params.sketch14_width")
sketch14.setExpression("Constraints[17]", "Params.sketch14_width2")
sketch14.setExpression("Constraints[18]", "Params.sketch14_height")
sketch14.setExpression("Constraints[19]", "Params.sketch14_height2")
pad4 = body.newObject("PartDesign::Pad", "Pad003")
pad4.Profile = sketch14
pad4.setExpression("Length", "Params.pad4_length")

# Sketch on XZ plane
sketch15 = body.newObject("Sketcher::SketchObject", "Sketch014")
sketch15.AttachmentSupport = (doc.getObject("XZ_Plane"), [""])
sketch15.MapMode = "FlatFace"
sketch15.AttachmentOffset = App.Placement(V(0, 0, -11.176631), App.Rotation())
add_polygon(sketch15, [(-163, 154), (-163, 148), (-146, 148), (-146, 154)])  # lines 0-3
sketch15.addConstraint(Sketcher.Constraint("Vertical", 0))
sketch15.addConstraint(Sketcher.Constraint("Horizontal", 1))
sketch15.addConstraint(Sketcher.Constraint("Vertical", 2))
sketch15.addConstraint(Sketcher.Constraint("Horizontal", 3))
sketch15.addConstraint(Sketcher.Constraint("DistanceX", 1, 1, 1, 2, Q("17 mm")))
sketch15.addConstraint(Sketcher.Constraint("DistanceY", 0, 2, 0, 1, Q("6 mm")))
sketch15.addConstraint(Sketcher.Constraint("DistanceY", -1, 1, 0, 2, Q("148 mm")))
sketch15.addConstraint(Sketcher.Constraint("DistanceX", 0, 2, -1, 1, Q("162.676132 mm")))
sketch15.setExpression("Constraints[8]", "Params.sketch15_width")
sketch15.setExpression("Constraints[9]", "Params.sketch15_height")
pocket11 = body.newObject("PartDesign::Pocket", "Pocket010")
pocket11.Profile = sketch15
pocket11.setExpression("Length", "Params.pocket11_length")

# Sketch on XZ plane
sketch16 = body.newObject("Sketcher::SketchObject", "Sketch015")
sketch16.AttachmentSupport = (doc.getObject("XZ_Plane"), [""])
sketch16.MapMode = "FlatFace"
sketch16.AttachmentOffset = App.Placement(V(0, 0, -16.976631), App.Rotation())
sketch16.addGeometry(Part.Circle(V(-148.7, 151, 0), V(0, 0, 1), 1.7), False)
sketch16.addConstraint(Sketcher.Constraint("Diameter", 0, Q("3.4 mm")))
sketch16.addConstraint(Sketcher.Constraint("DistanceY", -1, 1, 0, 3, Q("151 mm")))
sketch16.addConstraint(Sketcher.Constraint("DistanceX", 0, 3, -1, 1, Q("148.676132 mm")))
sketch16.setExpression("Constraints[0]", "Params.sketch16_diameter")
pocket12 = body.newObject("PartDesign::Pocket", "Pocket011")
pocket12.Profile = sketch16
pocket12.Type = "ThroughAll"
pocket12.Reversed = True
doc.recompute()

fillet = body.newObject("PartDesign::Fillet", "Fillet")
fillet.Base = (pocket12, edges_at(pocket12, [(-224.676, 17.977, 108), (-194.676, 17.977, 129), (-214.676, 17.977, 108)]))
fillet.setExpression("Radius", "Params.fillet_radius")
doc.recompute()

fillet2 = body.newObject("PartDesign::Fillet", "Fillet001")
fillet2.Base = (fillet, edges_at(fillet, [(-194.676, 17.977, 139)]))
fillet2.setExpression("Radius", "Params.fillet2_radius")

doc.recompute()
